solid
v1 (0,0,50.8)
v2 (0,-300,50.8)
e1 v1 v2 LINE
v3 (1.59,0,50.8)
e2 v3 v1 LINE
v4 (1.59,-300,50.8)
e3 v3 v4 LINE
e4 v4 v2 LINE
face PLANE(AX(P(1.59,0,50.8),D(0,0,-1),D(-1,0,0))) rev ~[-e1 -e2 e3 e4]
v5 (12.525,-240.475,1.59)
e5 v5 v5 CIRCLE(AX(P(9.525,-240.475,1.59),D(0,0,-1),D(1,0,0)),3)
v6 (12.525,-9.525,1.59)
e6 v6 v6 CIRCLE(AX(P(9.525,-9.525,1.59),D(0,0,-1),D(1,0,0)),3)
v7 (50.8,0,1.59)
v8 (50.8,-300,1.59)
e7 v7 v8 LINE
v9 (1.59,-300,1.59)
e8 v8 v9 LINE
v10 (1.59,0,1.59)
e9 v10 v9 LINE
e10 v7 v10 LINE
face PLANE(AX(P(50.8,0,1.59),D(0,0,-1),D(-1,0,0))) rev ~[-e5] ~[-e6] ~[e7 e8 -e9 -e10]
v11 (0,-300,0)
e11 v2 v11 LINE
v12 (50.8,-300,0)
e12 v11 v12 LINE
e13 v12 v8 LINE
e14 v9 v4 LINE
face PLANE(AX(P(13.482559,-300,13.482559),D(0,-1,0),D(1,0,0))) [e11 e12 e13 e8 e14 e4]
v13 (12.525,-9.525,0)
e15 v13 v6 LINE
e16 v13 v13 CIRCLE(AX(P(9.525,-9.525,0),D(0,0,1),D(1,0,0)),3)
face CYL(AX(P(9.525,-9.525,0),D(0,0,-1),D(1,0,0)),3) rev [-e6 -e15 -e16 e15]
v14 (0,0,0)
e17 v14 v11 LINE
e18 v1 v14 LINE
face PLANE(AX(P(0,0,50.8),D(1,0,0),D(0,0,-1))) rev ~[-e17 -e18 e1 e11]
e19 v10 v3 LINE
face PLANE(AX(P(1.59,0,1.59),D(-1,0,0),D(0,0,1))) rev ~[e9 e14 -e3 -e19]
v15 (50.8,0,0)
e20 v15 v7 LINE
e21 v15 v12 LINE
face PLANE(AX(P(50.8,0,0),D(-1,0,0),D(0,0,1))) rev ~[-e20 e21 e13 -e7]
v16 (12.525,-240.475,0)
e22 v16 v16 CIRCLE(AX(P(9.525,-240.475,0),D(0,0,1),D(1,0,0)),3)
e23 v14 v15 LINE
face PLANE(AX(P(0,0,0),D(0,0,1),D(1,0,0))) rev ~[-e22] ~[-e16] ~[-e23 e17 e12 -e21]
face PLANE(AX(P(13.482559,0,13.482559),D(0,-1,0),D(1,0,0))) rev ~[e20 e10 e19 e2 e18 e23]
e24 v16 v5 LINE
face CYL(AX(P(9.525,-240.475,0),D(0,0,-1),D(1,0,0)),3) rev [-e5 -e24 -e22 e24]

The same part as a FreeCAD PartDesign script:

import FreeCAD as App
import Part
import Sketcher


def add_polygon(sketch, points):
    """Adds a closed chain of lines whose ends are joined by coincident constraints."""
    first, n = sketch.GeometryCount, len(points)
    for a, b in zip(points, points[1:] + points[:1]):
        sketch.addGeometry(Part.LineSegment(App.Vector(*a, 0), App.Vector(*b, 0)), False)
    for i in range(n):
        sketch.addConstraint(Sketcher.Constraint("Coincident", first + i, 2, first + (i + 1) % n, 1))

doc = App.newDocument("Part")
body = doc.addObject("PartDesign::Body", "Body")

sketch1 = body.newObject("Sketcher::SketchObject", "Sketch")
sketch1.AttachmentSupport = (doc.getObject("XZ_Plane"), [""])
sketch1.MapMode = "FlatFace"
add_polygon(sketch1, [(0, 50.8), (0, 0), (50.8, 0), (50.8, 1.6), (1.6, 1.6), (1.6, 50.8)])
sketch1.addConstraint([
    Sketcher.Constraint("Vertical", 0),
    Sketcher.Constraint("Horizontal", 1),
    Sketcher.Constraint("Vertical", 2),
    Sketcher.Constraint("Horizontal", 3),
    Sketcher.Constraint("Vertical", 4),
    Sketcher.Constraint("Horizontal", 5),
    Sketcher.Constraint("Coincident", 0, 2, -1, 1),
    Sketcher.Constraint("Equal", 1, 0),
    Sketcher.Constraint("Equal", 5, 2),
    Sketcher.Constraint("DistanceX", 1, 1, 1, 2, 50.8),
    Sketcher.Constraint("DistanceX", 3, 2, 3, 1, 49.21),
])
pad1 = body.newObject("PartDesign::Pad", "Pad")
pad1.Profile = sketch1
pad1.Length = 300

sketch2 = body.newObject("Sketcher::SketchObject", "Sketch001")
sketch2.AttachmentSupport = (doc.getObject("XY_Plane"), [""])
sketch2.MapMode = "FlatFace"
sketch2.addGeometry([
    Part.Circle(App.Vector(9.5, -9.5, 0), App.Vector(0, 0, 1), 3),
    Part.Circle(App.Vector(9.5, -240.5, 0), App.Vector(0, 0, 1), 3),
], False)
sketch2.addConstraint([
    Sketcher.Constraint("Equal", 0, 1),
    Sketcher.Constraint("Vertical", 0, 3, 1, 3),
    Sketcher.Constraint("Diameter", 0, 6.0),
    Sketcher.Constraint("DistanceY", 1, 3, 0, 3, 230.95),
    Sketcher.Constraint("DistanceX", -1, 1, 0, 3, 9.525),
    Sketcher.Constraint("DistanceY", 0, 3, -1, 1, 9.525),
])
pocket1 = body.newObject("PartDesign::Pocket", "Pocket")
pocket1.Profile = sketch2
pocket1.Type = "ThroughAll"
pocket1.Reversed = True

doc.recompute()
